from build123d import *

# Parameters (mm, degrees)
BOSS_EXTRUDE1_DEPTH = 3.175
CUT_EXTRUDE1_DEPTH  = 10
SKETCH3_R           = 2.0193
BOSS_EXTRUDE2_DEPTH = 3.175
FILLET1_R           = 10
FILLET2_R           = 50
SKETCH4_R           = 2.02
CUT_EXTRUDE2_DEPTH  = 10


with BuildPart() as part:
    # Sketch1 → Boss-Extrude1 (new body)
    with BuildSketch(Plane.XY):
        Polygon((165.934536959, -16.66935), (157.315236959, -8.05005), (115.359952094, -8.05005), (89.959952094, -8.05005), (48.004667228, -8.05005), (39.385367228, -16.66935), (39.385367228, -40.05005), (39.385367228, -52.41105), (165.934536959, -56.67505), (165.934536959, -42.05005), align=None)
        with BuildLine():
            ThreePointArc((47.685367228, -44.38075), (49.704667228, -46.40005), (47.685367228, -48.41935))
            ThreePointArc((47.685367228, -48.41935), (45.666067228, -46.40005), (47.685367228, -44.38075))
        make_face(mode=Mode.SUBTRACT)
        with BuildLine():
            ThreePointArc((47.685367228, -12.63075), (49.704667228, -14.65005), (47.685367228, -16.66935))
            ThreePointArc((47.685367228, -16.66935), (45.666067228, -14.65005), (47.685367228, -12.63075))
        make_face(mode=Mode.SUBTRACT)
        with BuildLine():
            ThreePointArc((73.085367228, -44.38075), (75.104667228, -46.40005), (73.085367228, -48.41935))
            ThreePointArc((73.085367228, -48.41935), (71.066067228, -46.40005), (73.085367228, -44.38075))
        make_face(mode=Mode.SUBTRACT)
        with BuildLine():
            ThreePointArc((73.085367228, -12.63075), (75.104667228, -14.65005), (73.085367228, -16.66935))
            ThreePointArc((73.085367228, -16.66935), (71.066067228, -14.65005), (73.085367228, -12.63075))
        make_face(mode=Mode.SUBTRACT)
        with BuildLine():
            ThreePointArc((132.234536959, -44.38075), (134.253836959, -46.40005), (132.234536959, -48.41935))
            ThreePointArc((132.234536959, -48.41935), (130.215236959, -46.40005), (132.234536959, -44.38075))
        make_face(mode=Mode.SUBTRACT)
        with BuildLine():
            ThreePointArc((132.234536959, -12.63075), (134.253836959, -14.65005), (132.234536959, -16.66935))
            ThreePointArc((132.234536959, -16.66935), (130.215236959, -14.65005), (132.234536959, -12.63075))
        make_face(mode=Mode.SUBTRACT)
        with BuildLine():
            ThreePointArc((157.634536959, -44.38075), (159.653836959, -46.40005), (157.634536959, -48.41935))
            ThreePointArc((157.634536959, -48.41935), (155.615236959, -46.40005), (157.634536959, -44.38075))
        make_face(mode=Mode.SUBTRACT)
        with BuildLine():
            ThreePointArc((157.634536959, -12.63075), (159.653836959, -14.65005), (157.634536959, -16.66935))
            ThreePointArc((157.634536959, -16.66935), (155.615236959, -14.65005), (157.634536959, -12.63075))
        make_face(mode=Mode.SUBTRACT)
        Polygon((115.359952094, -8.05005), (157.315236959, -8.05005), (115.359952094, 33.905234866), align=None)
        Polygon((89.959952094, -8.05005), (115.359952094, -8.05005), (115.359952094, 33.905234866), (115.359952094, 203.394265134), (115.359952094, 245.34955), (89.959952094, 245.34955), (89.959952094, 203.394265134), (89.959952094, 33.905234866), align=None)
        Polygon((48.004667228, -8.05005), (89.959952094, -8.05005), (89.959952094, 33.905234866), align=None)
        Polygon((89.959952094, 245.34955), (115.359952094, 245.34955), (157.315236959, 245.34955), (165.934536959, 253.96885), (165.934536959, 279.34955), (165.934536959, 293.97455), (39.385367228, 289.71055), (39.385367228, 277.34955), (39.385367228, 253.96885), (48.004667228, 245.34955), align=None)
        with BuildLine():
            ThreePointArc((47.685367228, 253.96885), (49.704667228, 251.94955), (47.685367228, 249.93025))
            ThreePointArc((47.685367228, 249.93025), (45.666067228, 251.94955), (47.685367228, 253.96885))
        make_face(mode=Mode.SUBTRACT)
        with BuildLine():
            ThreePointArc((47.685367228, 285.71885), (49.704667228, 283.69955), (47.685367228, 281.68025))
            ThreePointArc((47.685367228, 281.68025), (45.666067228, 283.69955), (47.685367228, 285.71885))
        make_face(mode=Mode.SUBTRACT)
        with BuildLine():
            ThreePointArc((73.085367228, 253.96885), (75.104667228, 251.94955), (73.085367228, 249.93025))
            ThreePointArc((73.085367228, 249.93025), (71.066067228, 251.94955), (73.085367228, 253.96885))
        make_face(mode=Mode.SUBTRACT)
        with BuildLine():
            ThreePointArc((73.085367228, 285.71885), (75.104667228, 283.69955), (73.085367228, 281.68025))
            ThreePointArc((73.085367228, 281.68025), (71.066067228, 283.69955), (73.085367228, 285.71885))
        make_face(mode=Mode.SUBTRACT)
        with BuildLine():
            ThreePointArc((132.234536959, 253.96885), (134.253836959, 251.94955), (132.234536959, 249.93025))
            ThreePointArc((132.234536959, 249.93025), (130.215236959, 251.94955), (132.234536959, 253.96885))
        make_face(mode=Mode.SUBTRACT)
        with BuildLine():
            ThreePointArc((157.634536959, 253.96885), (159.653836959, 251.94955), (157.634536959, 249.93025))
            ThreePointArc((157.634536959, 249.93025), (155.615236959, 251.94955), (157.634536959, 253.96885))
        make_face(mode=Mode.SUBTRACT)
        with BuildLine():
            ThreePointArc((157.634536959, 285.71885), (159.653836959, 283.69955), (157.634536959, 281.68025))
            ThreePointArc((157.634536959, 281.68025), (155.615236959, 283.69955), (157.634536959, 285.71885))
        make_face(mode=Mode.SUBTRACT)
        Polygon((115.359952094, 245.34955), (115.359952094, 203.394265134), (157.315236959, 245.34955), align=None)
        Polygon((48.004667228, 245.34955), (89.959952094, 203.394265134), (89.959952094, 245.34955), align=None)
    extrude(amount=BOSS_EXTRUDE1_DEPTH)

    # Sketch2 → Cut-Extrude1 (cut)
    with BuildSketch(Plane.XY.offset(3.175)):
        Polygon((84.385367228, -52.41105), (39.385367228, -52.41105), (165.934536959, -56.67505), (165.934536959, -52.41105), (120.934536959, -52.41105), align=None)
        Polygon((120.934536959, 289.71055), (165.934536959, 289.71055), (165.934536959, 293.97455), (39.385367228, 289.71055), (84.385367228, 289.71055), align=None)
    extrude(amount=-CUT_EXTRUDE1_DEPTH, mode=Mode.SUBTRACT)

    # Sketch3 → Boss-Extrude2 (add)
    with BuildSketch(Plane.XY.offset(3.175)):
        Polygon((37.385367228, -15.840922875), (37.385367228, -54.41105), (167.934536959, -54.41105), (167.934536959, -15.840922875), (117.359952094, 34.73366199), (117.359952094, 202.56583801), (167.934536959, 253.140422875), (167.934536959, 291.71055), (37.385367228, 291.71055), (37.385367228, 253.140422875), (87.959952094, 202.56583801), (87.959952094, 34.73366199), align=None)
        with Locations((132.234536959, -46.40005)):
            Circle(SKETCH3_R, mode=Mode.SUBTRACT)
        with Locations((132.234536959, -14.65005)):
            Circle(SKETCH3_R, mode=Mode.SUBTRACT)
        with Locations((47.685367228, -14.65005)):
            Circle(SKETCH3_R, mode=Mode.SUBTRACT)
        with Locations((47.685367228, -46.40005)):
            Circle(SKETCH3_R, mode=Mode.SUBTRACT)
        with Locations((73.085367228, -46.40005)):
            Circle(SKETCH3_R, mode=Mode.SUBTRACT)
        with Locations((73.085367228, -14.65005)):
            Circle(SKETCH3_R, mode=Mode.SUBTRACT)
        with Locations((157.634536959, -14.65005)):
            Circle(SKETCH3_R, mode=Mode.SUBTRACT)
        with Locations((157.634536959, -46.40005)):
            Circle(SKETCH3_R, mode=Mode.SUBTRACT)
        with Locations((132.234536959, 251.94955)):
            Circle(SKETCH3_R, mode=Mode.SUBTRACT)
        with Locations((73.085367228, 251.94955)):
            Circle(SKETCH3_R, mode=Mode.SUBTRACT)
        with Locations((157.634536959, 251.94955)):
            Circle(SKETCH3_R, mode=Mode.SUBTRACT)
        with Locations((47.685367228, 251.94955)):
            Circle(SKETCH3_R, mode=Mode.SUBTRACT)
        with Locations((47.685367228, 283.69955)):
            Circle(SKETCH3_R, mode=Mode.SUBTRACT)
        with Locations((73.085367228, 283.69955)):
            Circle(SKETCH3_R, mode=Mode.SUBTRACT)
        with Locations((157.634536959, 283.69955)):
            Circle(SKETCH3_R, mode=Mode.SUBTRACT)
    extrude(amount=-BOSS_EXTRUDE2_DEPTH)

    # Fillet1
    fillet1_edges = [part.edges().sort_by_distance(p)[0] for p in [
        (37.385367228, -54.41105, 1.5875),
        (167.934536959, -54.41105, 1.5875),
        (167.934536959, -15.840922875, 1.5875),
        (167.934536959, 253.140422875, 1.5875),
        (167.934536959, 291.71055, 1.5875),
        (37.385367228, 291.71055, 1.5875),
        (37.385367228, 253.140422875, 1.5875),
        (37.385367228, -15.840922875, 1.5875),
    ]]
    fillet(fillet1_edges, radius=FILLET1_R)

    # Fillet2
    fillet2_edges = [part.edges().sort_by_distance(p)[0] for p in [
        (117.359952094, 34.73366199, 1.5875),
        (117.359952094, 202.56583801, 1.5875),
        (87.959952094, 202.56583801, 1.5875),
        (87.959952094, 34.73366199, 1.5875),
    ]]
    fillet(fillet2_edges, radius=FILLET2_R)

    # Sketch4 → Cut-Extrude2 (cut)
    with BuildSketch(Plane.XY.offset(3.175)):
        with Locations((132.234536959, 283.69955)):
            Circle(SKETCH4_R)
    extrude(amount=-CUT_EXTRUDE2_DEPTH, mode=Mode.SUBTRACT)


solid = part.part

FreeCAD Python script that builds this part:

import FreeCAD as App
import Part
import Sketcher
from FreeCAD import Vector
Q = App.Units.Quantity


def edges_at(feature, points):
    """Names of the edges that pass closest to the given points."""
    edges = feature.Shape.Edges
    near = lambda p: min(range(len(edges)), key=lambda i: edges[i].distToShape(Part.Vertex(*p))[0])
    return sorted({f"Edge{near(p) + 1}" for p in points})


def add_polygon(sketch, points):
    """Adds a closed chain of lines whose ends are joined by coincident constraints."""
    first, n = sketch.GeometryCount, len(points)
    for a, b in zip(points, points[1:] + points[:1]):
        sketch.addGeometry(Part.LineSegment(App.Vector(*a, 0), App.Vector(*b, 0)), False)
    for i in range(n):
        sketch.addConstraint(Sketcher.Constraint("Coincident", first + i, 2, first + (i + 1) % n, 1))

doc = App.newDocument("Part")
body = doc.addObject("PartDesign::Body", "Body")

# Sketch on XY plane
sketch1 = body.newObject("Sketcher::SketchObject", "Sketch")
sketch1.AttachmentSupport = (doc.getObject("XY_Plane"), [""])
sketch1.MapMode = "FlatFace"
add_polygon(sketch1, [(165.9, -16.7), (157.3, -8.1), (115.4, 33.9), (115.4, 203.4), (157.3, 245.3), (165.9, 254), (165.9, 294), (39.4, 289.7), (39.4, 254), (90, 203.4), (90, 33.9), (39.4, -16.7), (39.4, -52.4), (165.9, -56.7)])  # lines 0-13
sketch1.addGeometry(Part.Circle(Vector(47.7, -46.4, 0), Vector(0, 0, 1), 2), False)  # 14
sketch1.addGeometry(Part.Circle(Vector(47.7, -14.7, 0), Vector(0, 0, 1), 2), False)  # 15
sketch1.addGeometry(Part.Circle(Vector(73.1, -46.4, 0), Vector(0, 0, 1), 2), False)  # 16
sketch1.addGeometry(Part.Circle(Vector(73.1, -14.7, 0), Vector(0, 0, 1), 2), False)  # 17
sketch1.addGeometry(Part.Circle(Vector(132.2, -46.4, 0), Vector(0, 0, 1), 2), False)  # 18
sketch1.addGeometry(Part.Circle(Vector(132.2, -14.7, 0), Vector(0, 0, 1), 2), False)  # 19
sketch1.addGeometry(Part.Circle(Vector(157.6, -46.4, 0), Vector(0, 0, 1), 2), False)  # 20
sketch1.addGeometry(Part.Circle(Vector(157.6, -14.7, 0), Vector(0, 0, 1), 2), False)  # 21
sketch1.addGeometry(Part.Circle(Vector(47.7, 251.9, 0), Vector(0, 0, 1), 2), False)  # 22
sketch1.addGeometry(Part.Circle(Vector(47.7, 283.7, 0), Vector(0, 0, 1), 2), False)  # 23
sketch1.addGeometry(Part.Circle(Vector(73.1, 251.9, 0), Vector(0, 0, 1), 2), False)  # 24
sketch1.addGeometry(Part.Circle(Vector(73.1, 283.7, 0), Vector(0, 0, 1), 2), False)  # 25
sketch1.addGeometry(Part.Circle(Vector(132.2, 251.9, 0), Vector(0, 0, 1), 2), False)  # 26
sketch1.addGeometry(Part.Circle(Vector(157.6, 251.9, 0), Vector(0, 0, 1), 2), False)  # 27
sketch1.addGeometry(Part.Circle(Vector(157.6, 283.7, 0), Vector(0, 0, 1), 2), False)  # 28
sketch1.addConstraint([
    Sketcher.Constraint("Vertical", 2),
    Sketcher.Constraint("Vertical", 5),
    Sketcher.Constraint("Vertical", 7),
    Sketcher.Constraint("Vertical", 9),
    Sketcher.Constraint("Vertical", 11),
    Sketcher.Constraint("Vertical", 13),
    Sketcher.Constraint("Equal", 14, 15),
    Sketcher.Constraint("Equal", 15, 16),
    Sketcher.Constraint("Equal", 16, 17),
    Sketcher.Constraint("Equal", 17, 18),
    Sketcher.Constraint("Equal", 18, 19),
    Sketcher.Constraint("Equal", 19, 20),
    Sketcher.Constraint("Equal", 20, 21),
    Sketcher.Constraint("Equal", 21, 22),
    Sketcher.Constraint("Equal", 22, 23),
    Sketcher.Constraint("Equal", 23, 24),
    Sketcher.Constraint("Equal", 24, 25),
    Sketcher.Constraint("Equal", 25, 26),
    Sketcher.Constraint("Equal", 26, 27),
    Sketcher.Constraint("Equal", 27, 28),
    Sketcher.Constraint("Parallel", 0, 1),
    Sketcher.Constraint("Perpendicular", 1, 3),
    Sketcher.Constraint("Parallel", 3, 4),
    Sketcher.Constraint("Perpendicular", 4, 8),
    Sketcher.Constraint("Perpendicular", 8, 10),
    Sketcher.Constraint("Horizontal", 14, 3, 16, 3),
    Sketcher.Constraint("Horizontal", 15, 3, 17, 3),
    Sketcher.Constraint("Horizontal", 16, 3, 18, 3),
    Sketcher.Constraint("Horizontal", 17, 3, 19, 3),
    Sketcher.Constraint("Horizontal", 18, 3, 20, 3),
    Sketcher.Constraint("Horizontal", 19, 3, 21, 3),
    Sketcher.Constraint("Horizontal", 22, 3, 24, 3),
    Sketcher.Constraint("Horizontal", 23, 3, 25, 3),
    Sketcher.Constraint("Horizontal", 24, 3, 26, 3),
    Sketcher.Constraint("Horizontal", 26, 3, 27, 3),
    Sketcher.Constraint("Horizontal", 25, 3, 28, 3),
    Sketcher.Constraint("Horizontal", 4, 2, 7, 2),
    Sketcher.Constraint("Horizontal", 2, 2, 8, 2),
    Sketcher.Constraint("Horizontal", 1, 2, 9, 2),
    Sketcher.Constraint("Horizontal", 10, 2, 13, 2),
    Sketcher.Constraint("Vertical", 14, 3, 15, 3),
    Sketcher.Constraint("Vertical", 16, 3, 17, 3),
    Sketcher.Constraint("Vertical", 18, 3, 19, 3),
    Sketcher.Constraint("Vertical", 20, 3, 21, 3),
    Sketcher.Constraint("Vertical", 15, 3, 22, 3),
    Sketcher.Constraint("Vertical", 22, 3, 23, 3),
    Sketcher.Constraint("Vertical", 17, 3, 24, 3),
    Sketcher.Constraint("Vertical", 24, 3, 25, 3),
    Sketcher.Constraint("Vertical", 19, 3, 26, 3),
    Sketcher.Constraint("Vertical", 21, 3, 27, 3),
    Sketcher.Constraint("Vertical", 27, 3, 28, 3),
    Sketcher.Constraint("Vertical", 0, 2, 3, 2),
    Sketcher.Constraint("Vertical", 7, 2, 10, 2),
    Sketcher.Constraint("Vertical", 5, 2, 12, 2),
    Sketcher.Constraint("Equal", 7, 11),
    Sketcher.Constraint("Equal", 5, 13),
    Sketcher.Constraint("Diameter", 14, Q("4.0386 mm")),
    Sketcher.Constraint("DistanceX", 14, 3, 16, 3, Q("25.4 mm")),
    Sketcher.Constraint("DistanceX", 18, 3, 20, 3, Q("25.4 mm")),
    Sketcher.Constraint("DistanceY", 21, 3, 0, 2, Q("6.6 mm")),
    Sketcher.Constraint("DistanceY", 3, 2, 27, 3, Q("6.6 mm")),
    Sketcher.Constraint("DistanceX", 27, 3, 4, 2, Q("8.3 mm")),
    Sketcher.Constraint("DistanceX", 6, 2, 23, 3, Q("8.3 mm")),
    Sketcher.Constraint("DistanceX", 8, 2, 2, 2, Q("25.4 mm")),
    Sketcher.Constraint("DistanceY", 14, 3, 15, 3, Q("31.75 mm")),
    Sketcher.Constraint("DistanceY", 22, 3, 23, 3, Q("31.75 mm")),
    Sketcher.Constraint("DistanceY", 5, 1, 5, 2, Q("40.0057 mm")),
    Sketcher.Constraint("DistanceY", 7, 2, 7, 1, Q("35.7417 mm")),
    Sketcher.Constraint("DistanceY", 28, 3, 5, 2, Q("10.275 mm")),
    Sketcher.Constraint("DistanceY", 2, 1, 2, 2, Q("169.48903 mm")),
    Sketcher.Constraint("DistanceY", 15, 3, 22, 3, Q("266.5996 mm")),
    Sketcher.Constraint("DistanceY", 14, 3, -1, 1, Q("46.40005 mm")),
    Sketcher.Constraint("DistanceX", -1, 1, 14, 3, Q("47.685367 mm")),
])
pad1 = body.newObject("PartDesign::Pad", "Pad")
pad1.Profile = sketch1
pad1.Length = 3.175

# Sketch on XY plane
sketch2 = body.newObject("Sketcher::SketchObject", "Sketch001")
sketch2.AttachmentSupport = (doc.getObject("XY_Plane"), [""])
sketch2.MapMode = "FlatFace"
sketch2.AttachmentOffset = App.Placement(Vector(0, 0, 3.175), App.Rotation())
add_polygon(sketch2, [(39.4, -52.4), (165.9, -56.7), (165.9, -52.4)])  # lines 0-2
add_polygon(sketch2, [(165.9, 289.7), (165.9, 294), (39.4, 289.7)])  # lines 3-5
sketch2.addConstraint([
    Sketcher.Constraint("Vertical", 1),
    Sketcher.Constraint("Horizontal", 2),
    Sketcher.Constraint("Vertical", 3),
    Sketcher.Constraint("Horizontal", 5),
    Sketcher.Constraint("Vertical", 1, 2, 3, 2),
    Sketcher.Constraint("Vertical", 2, 2, 4, 2),
    Sketcher.Constraint("Equal", 1, 3),
    Sketcher.Constraint("DistanceY", 1, 1, 1, 2, Q("4.264 mm")),
    Sketcher.Constraint("DistanceX", 2, 2, 2, 1, Q("126.54917 mm")),
    Sketcher.Constraint("DistanceY", 1, 2, 3, 2, Q("346.3856 mm")),
    Sketcher.Constraint("DistanceY", 0, 2, -1, 1, Q("56.67505 mm")),
    Sketcher.Constraint("DistanceX", -1, 1, 0, 2, Q("165.934537 mm")),
])
pocket1 = body.newObject("PartDesign::Pocket", "Pocket")
pocket1.Profile = sketch2
pocket1.Length = 10

# Sketch on XY plane
sketch3 = body.newObject("Sketcher::SketchObject", "Sketch002")
sketch3.AttachmentSupport = (doc.getObject("XY_Plane"), [""])
sketch3.MapMode = "FlatFace"
sketch3.AttachmentOffset = App.Placement(Vector(0, 0, 3.175), App.Rotation())
add_polygon(sketch3, [(37.4, -15.8), (37.4, -54.4), (167.9, -54.4), (167.9, -15.8), (117.4, 34.7), (117.4, 202.6), (167.9, 253.1), (167.9, 291.7), (37.4, 291.7), (37.4, 253.1), (88, 202.6), (88, 34.7)])  # lines 0-11
sketch3.addGeometry(Part.Circle(Vector(47.7, -46.4, 0), Vector(0, 0, 1), 2), False)  # 12
sketch3.addGeometry(Part.Circle(Vector(47.7, -14.7, 0), Vector(0, 0, 1), 2), False)  # 13
sketch3.addGeometry(Part.Circle(Vector(73.1, -46.4, 0), Vector(0, 0, 1), 2), False)  # 14
sketch3.addGeometry(Part.Circle(Vector(73.1, -14.7, 0), Vector(0, 0, 1), 2), False)  # 15
sketch3.addGeometry(Part.Circle(Vector(132.2, -46.4, 0), Vector(0, 0, 1), 2), False)  # 16
sketch3.addGeometry(Part.Circle(Vector(132.2, -14.7, 0), Vector(0, 0, 1), 2), False)  # 17
sketch3.addGeometry(Part.Circle(Vector(157.6, -46.4, 0), Vector(0, 0, 1), 2), False)  # 18
sketch3.addGeometry(Part.Circle(Vector(157.6, -14.7, 0), Vector(0, 0, 1), 2), False)  # 19
sketch3.addGeometry(Part.Circle(Vector(47.7, 251.9, 0), Vector(0, 0, 1), 2), False)  # 20
sketch3.addGeometry(Part.Circle(Vector(47.7, 283.7, 0), Vector(0, 0, 1), 2), False)  # 21
sketch3.addGeometry(Part.Circle(Vector(73.1, 251.9, 0), Vector(0, 0, 1), 2), False)  # 22
sketch3.addGeometry(Part.Circle(Vector(73.1, 283.7, 0), Vector(0, 0, 1), 2), False)  # 23
sketch3.addGeometry(Part.Circle(Vector(132.2, 251.9, 0), Vector(0, 0, 1), 2), False)  # 24
sketch3.addGeometry(Part.Circle(Vector(157.6, 251.9, 0), Vector(0, 0, 1), 2), False)  # 25
sketch3.addGeometry(Part.Circle(Vector(157.6, 283.7, 0), Vector(0, 0, 1), 2), False)  # 26
sketch3.addConstraint([
    Sketcher.Constraint("Vertical", 0),
    Sketcher.Constraint("Horizontal", 1),
    Sketcher.Constraint("Vertical", 2),
    Sketcher.Constraint("Vertical", 4),
    Sketcher.Constraint("Vertical", 6),
    Sketcher.Constraint("Horizontal", 7),
    Sketcher.Constraint("Vertical", 8),
    Sketcher.Constraint("Vertical", 10),
    Sketcher.Constraint("Equal", 12, 13),
    Sketcher.Constraint("Equal", 13, 14),
    Sketcher.Constraint("Equal", 14, 15),
    Sketcher.Constraint("Equal", 15, 16),
    Sketcher.Constraint("Equal", 16, 17),
    Sketcher.Constraint("Equal", 17, 18),
    Sketcher.Constraint("Equal", 18, 19),
    Sketcher.Constraint("Equal", 19, 20),
    Sketcher.Constraint("Equal", 20, 21),
    Sketcher.Constraint("Equal", 21, 22),
    Sketcher.Constraint("Equal", 22, 23),
    Sketcher.Constraint("Equal", 23, 24),
    Sketcher.Constraint("Equal", 24, 25),
    Sketcher.Constraint("Equal", 25, 26),
    Sketcher.Constraint("Perpendicular", 3, 5),
    Sketcher.Constraint("Perpendicular", 5, 9),
    Sketcher.Constraint("Perpendicular", 9, 11),
    Sketcher.Constraint("Horizontal", 12, 3, 14, 3),
    Sketcher.Constraint("Horizontal", 13, 3, 15, 3),
    Sketcher.Constraint("Horizontal", 14, 3, 16, 3),
    Sketcher.Constraint("Horizontal", 15, 3, 17, 3),
    Sketcher.Constraint("Horizontal", 16, 3, 18, 3),
    Sketcher.Constraint("Horizontal", 17, 3, 19, 3),
    Sketcher.Constraint("Horizontal", 20, 3, 22, 3),
    Sketcher.Constraint("Horizontal", 21, 3, 23, 3),
    Sketcher.Constraint("Horizontal", 22, 3, 24, 3),
    Sketcher.Constraint("Horizontal", 24, 3, 25, 3),
    Sketcher.Constraint("Horizontal", 23, 3, 26, 3),
    Sketcher.Constraint("Horizontal", 5, 2, 8, 2),
    Sketcher.Constraint("Horizontal", 4, 2, 9, 2),
    Sketcher.Constraint("Horizontal", 3, 2, 10, 2),
    Sketcher.Constraint("Horizontal", 2, 2, 11, 2),
    Sketcher.Constraint("Vertical", 12, 3, 13, 3),
    Sketcher.Constraint("Vertical", 14, 3, 15, 3),
    Sketcher.Constraint("Vertical", 16, 3, 17, 3),
    Sketcher.Constraint("Vertical", 18, 3, 19, 3),
    Sketcher.Constraint("Vertical", 13, 3, 20, 3),
    Sketcher.Constraint("Vertical", 20, 3, 21, 3),
    Sketcher.Constraint("Vertical", 15, 3, 22, 3),
    Sketcher.Constraint("Vertical", 22, 3, 23, 3),
    Sketcher.Constraint("Vertical", 17, 3, 24, 3),
    Sketcher.Constraint("Vertical", 19, 3, 25, 3),
    Sketcher.Constraint("Vertical", 25, 3, 26, 3),
    Sketcher.Constraint("Vertical", 2, 2, 5, 2),
    Sketcher.Constraint("Vertical", 0, 2, 7, 2),
    Sketcher.Constraint("Equal", 2, 6),
    Sketcher.Constraint("Diameter", 12, Q("4.0386 mm")),
    Sketcher.Constraint("DistanceX", 12, 3, 14, 3, Q("25.4 mm")),
    Sketcher.Constraint("DistanceX", 16, 3, 18, 3, Q("25.4 mm")),
    Sketcher.Constraint("DistanceX", 0, 2, 12, 3, Q("10.3 mm")),
    Sketcher.Constraint("DistanceX", 18, 3, 1, 2, Q("10.3 mm")),
    Sketcher.Constraint("DistanceX", 9, 2, 4, 2, Q("29.4 mm")),
    Sketcher.Constraint("DistanceY", 12, 3, 13, 3, Q("31.75 mm")),
    Sketcher.Constraint("DistanceY", 20, 3, 21, 3, Q("31.75 mm")),
    Sketcher.Constraint("DistanceY", 0, 2, 12, 3, Q("8.011 mm")),
    Sketcher.Constraint("DistanceY", 26, 3, 6, 2, Q("8.011 mm")),
    Sketcher.Constraint("DistanceX", 1, 1, 1, 2, Q("130.54917 mm")),
    Sketcher.Constraint("DistanceY", 13, 3, 20, 3, Q("266.5996 mm")),
    Sketcher.Constraint("DistanceY", 0, 2, 0, 1, Q("38.570127 mm")),
    Sketcher.Constraint("DistanceY", 12, 3, -1, 1, Q("46.40005 mm")),
    Sketcher.Constraint("DistanceX", -1, 1, 12, 3, Q("47.685367 mm")),
])
pad2 = body.newObject("PartDesign::Pad", "Pad001")
pad2.Profile = sketch3
pad2.Length = 3.175
pad2.Reversed = True
doc.recompute()

fillet = body.newObject("PartDesign::Fillet", "Fillet")
fillet.Base = (pad2, edges_at(pad2, [
    (37.385, -54.411, 1.587),
    (167.935, -54.411, 1.587),
    (167.935, -15.841, 1.587),
    (167.935, 253.14, 1.587),
    (167.935, 291.711, 1.587),
    (37.385, 291.711, 1.587),
    (37.385, 253.14, 1.587),
    (37.385, -15.841, 1.587),
]))
fillet.Radius = 10
doc.recompute()

fillet2 = body.newObject("PartDesign::Fillet", "Fillet001")
fillet2.Base = (fillet, edges_at(fillet, [
    (117.36, 34.734, 1.587),
    (117.36, 202.566, 1.587),
    (87.96, 202.566, 1.587),
    (87.96, 34.734, 1.587),
]))
fillet2.Radius = 50

# Sketch on XY plane
sketch4 = body.newObject("Sketcher::SketchObject", "Sketch003")
sketch4.AttachmentSupport = (doc.getObject("XY_Plane"), [""])
sketch4.MapMode = "FlatFace"
sketch4.AttachmentOffset = App.Placement(Vector(0, 0, 3.175), App.Rotation())
sketch4.addGeometry(Part.Circle(Vector(132.2, 283.7, 0), Vector(0, 0, 1), 2), False)
sketch4.addConstraint([
    Sketcher.Constraint("Diameter", 0, Q("4.04 mm")),
    Sketcher.Constraint("DistanceY", -1, 1, 0, 3, Q("283.69955 mm")),
    Sketcher.Constraint("DistanceX", -1, 1, 0, 3, Q("132.234537 mm")),
])
pocket2 = body.newObject("PartDesign::Pocket", "Pocket001")
pocket2.Profile = sketch4
pocket2.Length = 10

doc.recompute()
